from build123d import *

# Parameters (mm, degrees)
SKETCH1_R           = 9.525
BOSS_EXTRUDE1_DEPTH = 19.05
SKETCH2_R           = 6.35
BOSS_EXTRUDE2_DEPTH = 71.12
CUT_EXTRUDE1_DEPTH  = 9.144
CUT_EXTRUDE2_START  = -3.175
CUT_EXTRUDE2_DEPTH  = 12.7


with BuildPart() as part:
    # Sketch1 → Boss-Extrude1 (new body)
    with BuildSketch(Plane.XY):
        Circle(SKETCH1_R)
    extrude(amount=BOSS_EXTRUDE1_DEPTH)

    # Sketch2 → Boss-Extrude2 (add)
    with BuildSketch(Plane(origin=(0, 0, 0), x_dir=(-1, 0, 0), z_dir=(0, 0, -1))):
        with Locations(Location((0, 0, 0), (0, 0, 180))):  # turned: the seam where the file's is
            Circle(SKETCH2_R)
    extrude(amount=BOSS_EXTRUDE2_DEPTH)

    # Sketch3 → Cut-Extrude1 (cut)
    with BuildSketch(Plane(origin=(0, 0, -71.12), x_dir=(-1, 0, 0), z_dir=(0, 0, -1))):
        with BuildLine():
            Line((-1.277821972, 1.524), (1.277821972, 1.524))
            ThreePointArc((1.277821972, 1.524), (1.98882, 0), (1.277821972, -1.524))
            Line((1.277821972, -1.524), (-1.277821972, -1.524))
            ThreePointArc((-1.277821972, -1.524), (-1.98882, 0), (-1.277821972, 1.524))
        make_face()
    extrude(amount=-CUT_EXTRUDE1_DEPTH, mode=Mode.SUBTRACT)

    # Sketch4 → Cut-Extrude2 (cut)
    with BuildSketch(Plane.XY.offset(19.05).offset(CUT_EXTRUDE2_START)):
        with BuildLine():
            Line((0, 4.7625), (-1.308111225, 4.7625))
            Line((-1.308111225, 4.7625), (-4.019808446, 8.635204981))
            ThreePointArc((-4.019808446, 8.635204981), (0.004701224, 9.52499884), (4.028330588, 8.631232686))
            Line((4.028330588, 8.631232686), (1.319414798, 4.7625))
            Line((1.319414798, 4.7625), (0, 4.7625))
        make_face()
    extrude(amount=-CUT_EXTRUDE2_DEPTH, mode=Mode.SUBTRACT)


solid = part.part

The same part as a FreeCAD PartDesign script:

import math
import FreeCAD as App
import Part
import Sketcher

V = App.Vector
Q = App.Units.Quantity

doc = App.newDocument("Part")
body = doc.addObject("PartDesign::Body", "Body")

sketch1 = doc.addObject("Sketcher::SketchObject", "Sketch")
body.addObject(sketch1)
sketch1.AttachmentSupport = (doc.XY_Plane, [""])
sketch1.MapMode = "FlatFace"
sketch1.addGeometry(Part.Circle(V(0, 0, 0), V(0, 0, 1), 10), False)
sketch1.addConstraint(Sketcher.Constraint("Coincident", 0, 3, -1, 1))
sketch1.addConstraint(Sketcher.Constraint("Diameter", 0, Q("0.75 in")))
pad1 = doc.addObject("PartDesign::Pad", "Pad")
body.addObject(pad1)
pad1.Profile = sketch1
pad1.Length = Q("0.75 in")

sketch2 = doc.addObject("Sketcher::SketchObject", "Sketch001")
body.addObject(sketch2)
sketch2.AttachmentSupport = (doc.XY_Plane, [""])
sketch2.MapMode = "FlatFace"
sketch2.addGeometry(Part.Circle(V(0, 0, 0), V(0, 0, 1), 6), False)
sketch2.addConstraint(Sketcher.Constraint("Coincident", 0, 3, -1, 1))
sketch2.addConstraint(Sketcher.Constraint("Diameter", 0, Q("0.5 in")))
pad2 = doc.addObject("PartDesign::Pad", "Pad001")
body.addObject(pad2)
pad2.Profile = sketch2
pad2.Length = Q("2.8 in")
pad2.Reversed = True

sketch3 = doc.addObject("Sketcher::SketchObject", "Sketch002")
body.addObject(sketch3)
sketch3.AttachmentSupport = (doc.XY_Plane, [""])
sketch3.MapMode = "FlatFace"
sketch3.AttachmentOffset = App.Placement(V(0, 0, -2.8 * 25.4), App.Rotation())
sketch3.addGeometry(Part.LineSegment(V(-1.3, 1.5, 0), V(1.3, 1.5, 0)), False)
sketch3.addGeometry(Part.ArcOfCircle(Part.Circle(V(0, 0, 0), V(0, 0, 1), 2), math.radians(-50), math.radians(50)), False)
sketch3.addGeometry(Part.LineSegment(V(1.3, -1.5, 0), V(-1.3, -1.5, 0)), False)
sketch3.addGeometry(Part.ArcOfCircle(Part.Circle(V(0, 0, 0), V(0, 0, 1), 2), math.radians(130), math.radians(230)), False)
sketch3.addConstraint(Sketcher.Constraint("Coincident", 0, 2, 1, 2))
sketch3.addConstraint(Sketcher.Constraint("Coincident", 1, 1, 2, 1))
sketch3.addConstraint(Sketcher.Constraint("Coincident", 2, 2, 3, 2))
sketch3.addConstraint(Sketcher.Constraint("Coincident", 3, 1, 0, 1))
sketch3.addConstraint(Sketcher.Constraint("Horizontal", 0))
sketch3.addConstraint(Sketcher.Constraint("Horizontal", 2))
sketch3.addConstraint(Sketcher.Constraint("Coincident", 1, 3, -1, 1))
sketch3.addConstraint(Sketcher.Constraint("Coincident", 3, 3, -1, 1))
sketch3.addConstraint(Sketcher.Constraint("Equal", 1, 3))
sketch3.addConstraint(Sketcher.Constraint("Vertical", 0, 2, 1, 1))
sketch3.addConstraint(Sketcher.Constraint("Radius", 1, Q("0.0783 in")))
sketch3.addConstraint(Sketcher.Constraint("DistanceY", -1, 1, 0, 2, Q("0.06 in")))
pocket1 = doc.addObject("PartDesign::Pocket", "Pocket")
body.addObject(pocket1)
pocket1.Profile = sketch3
pocket1.Length = Q("0.36 in")
pocket1.Reversed = True

sketch4 = doc.addObject("Sketcher::SketchObject", "Sketch003")
body.addObject(sketch4)
sketch4.AttachmentSupport = (doc.XY_Plane, [""])
sketch4.MapMode = "FlatFace"
sketch4.AttachmentOffset = App.Placement(V(0, 0, 0.625 * 25.4), App.Rotation())
sketch4.addGeometry(Part.LineSegment(V(-4, 8.6, 0), V(-1.3, 4.8, 0)), False)
sketch4.addGeometry(Part.LineSegment(V(-1.3, 4.8, 0), V(1.3, 4.8, 0)), False)
sketch4.addGeometry(Part.LineSegment(V(1.3, 4.8, 0), V(4, 8.6, 0)), False)
sketch4.addGeometry(Part.ArcOfCircle(Part.Circle(V(0, 0, 0), V(0, 0, 1), 9.5), math.radians(65), math.radians(115)), False)
sketch4.addConstraint(Sketcher.Constraint("Coincident", 0, 2, 1, 1))
sketch4.addConstraint(Sketcher.Constraint("Coincident", 1, 2, 2, 1))
sketch4.addConstraint(Sketcher.Constraint("Coincident", 2, 2, 3, 1))
sketch4.addConstraint(Sketcher.Constraint("Coincident", 3, 2, 0, 1))
sketch4.addConstraint(Sketcher.Constraint("Horizontal", 1))
sketch4.addConstraint(Sketcher.Constraint("Coincident", 3, 3, -1, 1))
sketch4.addConstraint(Sketcher.Constraint("Angle", 0, Q("-55 deg")))
sketch4.addConstraint(Sketcher.Constraint("Angle", 2, Q("55 deg")))
sketch4.addConstraint(Sketcher.Constraint("Radius", 3, Q("0.375 in")))
sketch4.addConstraint(Sketcher.Constraint("DistanceY", -1, 1, 0, 2, Q("0.1875 in")))
sketch4.addConstraint(Sketcher.Constraint("Distance", 0, 4.7277))
sketch4.addConstraint(Sketcher.Constraint("Distance", 2, 4.722851))
pocket2 = doc.addObject("PartDesign::Pocket", "Pocket001")
body.addObject(pocket2)
pocket2.Profile = sketch4
pocket2.Length = Q("0.5 in")

doc.recompute()
